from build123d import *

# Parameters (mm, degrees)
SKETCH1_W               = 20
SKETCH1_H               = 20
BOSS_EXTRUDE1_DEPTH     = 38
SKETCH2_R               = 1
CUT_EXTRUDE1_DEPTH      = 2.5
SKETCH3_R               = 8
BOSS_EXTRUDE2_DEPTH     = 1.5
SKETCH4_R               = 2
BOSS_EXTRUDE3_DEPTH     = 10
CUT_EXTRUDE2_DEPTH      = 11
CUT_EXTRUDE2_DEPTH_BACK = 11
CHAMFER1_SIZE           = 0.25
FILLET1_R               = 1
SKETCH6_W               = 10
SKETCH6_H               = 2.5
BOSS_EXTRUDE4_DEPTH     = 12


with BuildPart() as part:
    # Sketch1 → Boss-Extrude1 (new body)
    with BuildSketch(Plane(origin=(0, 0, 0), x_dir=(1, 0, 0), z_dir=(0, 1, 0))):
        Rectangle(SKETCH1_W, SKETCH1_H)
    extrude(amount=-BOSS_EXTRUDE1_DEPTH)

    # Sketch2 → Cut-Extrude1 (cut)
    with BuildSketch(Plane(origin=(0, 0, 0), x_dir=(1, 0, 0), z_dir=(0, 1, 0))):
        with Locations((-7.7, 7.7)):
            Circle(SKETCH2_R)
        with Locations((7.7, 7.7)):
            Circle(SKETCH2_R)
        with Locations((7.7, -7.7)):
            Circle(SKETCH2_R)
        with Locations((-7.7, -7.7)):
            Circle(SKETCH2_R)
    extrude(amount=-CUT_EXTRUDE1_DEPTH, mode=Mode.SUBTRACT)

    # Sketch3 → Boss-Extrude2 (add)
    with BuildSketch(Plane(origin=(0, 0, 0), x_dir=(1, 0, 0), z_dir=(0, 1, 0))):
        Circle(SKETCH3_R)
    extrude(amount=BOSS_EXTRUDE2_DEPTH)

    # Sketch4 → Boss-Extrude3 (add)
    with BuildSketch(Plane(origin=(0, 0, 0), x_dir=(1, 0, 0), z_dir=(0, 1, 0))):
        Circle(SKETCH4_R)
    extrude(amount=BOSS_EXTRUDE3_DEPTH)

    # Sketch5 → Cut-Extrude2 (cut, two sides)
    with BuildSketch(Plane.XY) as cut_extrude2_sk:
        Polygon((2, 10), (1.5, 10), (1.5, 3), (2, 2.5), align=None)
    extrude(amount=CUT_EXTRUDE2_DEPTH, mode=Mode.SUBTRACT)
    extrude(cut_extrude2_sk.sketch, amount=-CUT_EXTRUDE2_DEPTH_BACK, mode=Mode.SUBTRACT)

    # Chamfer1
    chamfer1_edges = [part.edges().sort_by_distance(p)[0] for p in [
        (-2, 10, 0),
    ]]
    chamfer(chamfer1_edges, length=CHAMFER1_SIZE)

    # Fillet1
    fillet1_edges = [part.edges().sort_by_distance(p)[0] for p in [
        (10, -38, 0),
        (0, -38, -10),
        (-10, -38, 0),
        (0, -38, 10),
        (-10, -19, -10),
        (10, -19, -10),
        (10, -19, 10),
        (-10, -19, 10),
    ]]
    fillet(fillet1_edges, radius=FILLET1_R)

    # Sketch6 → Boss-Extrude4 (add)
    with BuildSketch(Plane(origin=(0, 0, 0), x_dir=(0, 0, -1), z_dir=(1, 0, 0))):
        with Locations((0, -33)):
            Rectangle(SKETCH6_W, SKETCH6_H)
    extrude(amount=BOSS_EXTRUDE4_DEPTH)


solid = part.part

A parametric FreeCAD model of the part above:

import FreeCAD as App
import Part
import Sketcher
Q = App.Units.Quantity


def edges_at(feature, points):
    """Names of the edges that pass closest to the given points."""
    edges = feature.Shape.Edges
    near = lambda p: min(range(len(edges)), key=lambda i: edges[i].distToShape(Part.Vertex(*p))[0])
    return sorted({f"Edge{near(p) + 1}" for p in points})


def add_polygon(sketch, points):
    """Adds a closed chain of lines whose ends are joined by coincident constraints."""
    first, n = sketch.GeometryCount, len(points)
    for a, b in zip(points, points[1:] + points[:1]):
        sketch.addGeometry(Part.LineSegment(App.Vector(*a, 0), App.Vector(*b, 0)), False)
    for i in range(n):
        sketch.addConstraint(Sketcher.Constraint("Coincident", first + i, 2, first + (i + 1) % n, 1))

doc = App.newDocument("Part")
params = doc.addObject("Spreadsheet::Sheet", "Params")
for row, (alias, value) in enumerate([
    ("sketch1_width", "20 mm"),
    ("pad1_length", "38 mm"),
    ("sketch2_diameter", "2 mm"),
    ("pocket1_length", "2.5 mm"),
    ("sketch3_diameter", "16 mm"),
    ("pad2_length", "1.5 mm"),
    ("sketch4_diameter", "4 mm"),
    ("pad3_length", "10 mm"),
    ("sketch5_height", "7 mm"),
    ("sketch5_width", "0.5 mm"),
    ("chamfer_size", "0.25 mm"),
    ("fillet_radius", "1 mm"),
    ("sketch6_height", "10 mm"),
    ("sketch6_width", "2.5 mm"),
    ("pad4_length", "12 mm"),
], start=1):
    params.set(f"A{row}", alias)
    params.set(f"B{row}", "=" + value)
    params.setAlias(f"B{row}", alias)

body = doc.addObject("PartDesign::Body", "Body")

sketch1 = doc.addObject("Sketcher::SketchObject", "Sketch")
body.addObject(sketch1)
sketch1.AttachmentSupport = (doc.XZ_Plane, [""])
sketch1.MapMode = "FlatFace"
add_polygon(sketch1, [(-10, -10), (-10, 10), (10, 10), (10, -10)])
sketch1.addConstraint(Sketcher.Constraint("Vertical", 0))
sketch1.addConstraint(Sketcher.Constraint("Horizontal", 1))
sketch1.addConstraint(Sketcher.Constraint("Vertical", 2))
sketch1.addConstraint(Sketcher.Constraint("Horizontal", 3))
sketch1.addConstraint(Sketcher.Constraint("Symmetric", 0, 2, 2, 2, -1, 1))
sketch1.addConstraint(Sketcher.Constraint("Equal", 3, 0))
sketch1.addConstraint(Sketcher.Constraint("DistanceX", 1, 1, 1, 2, 20.0))
sketch1.setExpression("Constraints[10]", "Params.sketch1_width")
pad1 = doc.addObject("PartDesign::Pad", "Pad")
body.addObject(pad1)
pad1.Profile = sketch1
pad1.setExpression("Length", "Params.pad1_length")

sketch2 = doc.addObject("Sketcher::SketchObject", "Sketch001")
body.addObject(sketch2)
sketch2.AttachmentSupport = (doc.XZ_Plane, [""])
sketch2.MapMode = "FlatFace"
sketch2.addGeometry(Part.Circle(App.Vector(-7.7, -7.7, 0), App.Vector(0, 0, 1), 1), False)
sketch2.addGeometry(Part.Circle(App.Vector(7.7, -7.7, 0), App.Vector(0, 0, 1), 1), False)
sketch2.addGeometry(Part.Circle(App.Vector(7.7, 7.7, 0), App.Vector(0, 0, 1), 1), False)
sketch2.addGeometry(Part.Circle(App.Vector(-7.7, 7.7, 0), App.Vector(0, 0, 1), 1), False)
sketch2.addConstraint(Sketcher.Constraint("Equal", 0, 1))
sketch2.addConstraint(Sketcher.Constraint("Equal", 1, 2))
sketch2.addConstraint(Sketcher.Constraint("Equal", 2, 3))
sketch2.addConstraint(Sketcher.Constraint("Symmetric", 0, 3, 2, 3, -1, 1))
sketch2.addConstraint(Sketcher.Constraint("Symmetric", 1, 3, 3, 3, -1, 1))
sketch2.addConstraint(Sketcher.Constraint("Symmetric", 0, 3, 1, 3, -2))
sketch2.addConstraint(Sketcher.Constraint("Diameter", 0, 2.0))
sketch2.addConstraint(Sketcher.Constraint("DistanceX", 0, 3, -1, 1, 7.7))
sketch2.addConstraint(Sketcher.Constraint("DistanceY", 0, 3, -1, 1, 7.7))
sketch2.setExpression("Constraints[6]", "Params.sketch2_diameter")
pocket1 = doc.addObject("PartDesign::Pocket", "Pocket")
body.addObject(pocket1)
pocket1.Profile = sketch2
pocket1.setExpression("Length", "Params.pocket1_length")
pocket1.Reversed = True

sketch3 = doc.addObject("Sketcher::SketchObject", "Sketch002")
body.addObject(sketch3)
sketch3.AttachmentSupport = (doc.XZ_Plane, [""])
sketch3.MapMode = "FlatFace"
sketch3.addGeometry(Part.Circle(App.Vector(0, 0, 0), App.Vector(0, 0, 1), 8), False)
sketch3.addConstraint(Sketcher.Constraint("Coincident", 0, 3, -1, 1))
sketch3.addConstraint(Sketcher.Constraint("Diameter", 0, 16.0))
sketch3.setExpression("Constraints[1]", "Params.sketch3_diameter")
pad2 = doc.addObject("PartDesign::Pad", "Pad001")
body.addObject(pad2)
pad2.Profile = sketch3
pad2.setExpression("Length", "Params.pad2_length")
pad2.Reversed = True

sketch4 = doc.addObject("Sketcher::SketchObject", "Sketch003")
body.addObject(sketch4)
sketch4.AttachmentSupport = (doc.XZ_Plane, [""])
sketch4.MapMode = "FlatFace"
sketch4.addGeometry(Part.Circle(App.Vector(0, 0, 0), App.Vector(0, 0, 1), 2), False)
sketch4.addConstraint(Sketcher.Constraint("Coincident", 0, 3, -1, 1))
sketch4.addConstraint(Sketcher.Constraint("Diameter", 0, 4.0))
sketch4.setExpression("Constraints[1]", "Params.sketch4_diameter")
pad3 = doc.addObject("PartDesign::Pad", "Pad002")
body.addObject(pad3)
pad3.Profile = sketch4
pad3.setExpression("Length", "Params.pad3_length")
pad3.Reversed = True

sketch5 = doc.addObject("Sketcher::SketchObject", "Sketch004")
body.addObject(sketch5)
sketch5.AttachmentSupport = (doc.XY_Plane, [""])
sketch5.MapMode = "FlatFace"
add_polygon(sketch5, [(2, 10), (1.5, 10), (1.5, 3), (2, 2.5)])
sketch5.addConstraint(Sketcher.Constraint("Horizontal", 0))
sketch5.addConstraint(Sketcher.Constraint("Vertical", 1))
sketch5.addConstraint(Sketcher.Constraint("Vertical", 3))
sketch5.addConstraint(Sketcher.Constraint("DistanceY", 1, 2, 1, 1, 7.0))
sketch5.addConstraint(Sketcher.Constraint("Angle", 2, Q("-45 deg")))
sketch5.addConstraint(Sketcher.Constraint("DistanceX", 0, 2, 0, 1, 0.5))
sketch5.addConstraint(Sketcher.Constraint("DistanceY", -1, 1, 0, 2, 10.0))
sketch5.addConstraint(Sketcher.Constraint("DistanceX", -1, 1, 2, 2, 2.0))
sketch5.setExpression("Constraints[7]", "Params.sketch5_height")
sketch5.setExpression("Constraints[9]", "Params.sketch5_width")
pocket2 = doc.addObject("PartDesign::Pocket", "Pocket001")
body.addObject(pocket2)
pocket2.Profile = sketch5
pocket2.Type = "ThroughAll"
pocket2.Midplane = True
doc.recompute()

chamfer = doc.addObject("PartDesign::Chamfer", "Chamfer")
body.addObject(chamfer)
chamfer.Base = (pocket2, edges_at(pocket2, [(-2, 10, 0)]))
chamfer.setExpression("Size", "Params.chamfer_size")
doc.recompute()

fillet = doc.addObject("PartDesign::Fillet", "Fillet")
body.addObject(fillet)
fillet.Base = (chamfer, edges_at(chamfer, [
    (10, -38, 0),
    (0, -38, -10),
    (-10, -38, 0),
    (0, -38, 10),
    (-10, -19, -10),
    (10, -19, -10),
    (10, -19, 10),
    (-10, -19, 10),
]))
fillet.setExpression("Radius", "Params.fillet_radius")

sketch6 = doc.addObject("Sketcher::SketchObject", "Sketch005")
body.addObject(sketch6)
sketch6.AttachmentSupport = (doc.YZ_Plane, [""])
sketch6.MapMode = "FlatFace"
add_polygon(sketch6, [(-31.75, 5), (-34.25, 5), (-34.25, -5), (-31.75, -5)])
sketch6.addConstraint(Sketcher.Constraint("Horizontal", 0))
sketch6.addConstraint(Sketcher.Constraint("Vertical", 1))
sketch6.addConstraint(Sketcher.Constraint("Horizontal", 2))
sketch6.addConstraint(Sketcher.Constraint("Vertical", 3))
sketch6.addConstraint(Sketcher.Constraint("DistanceY", 1, 2, 1, 1, 10.0))
sketch6.addConstraint(Sketcher.Constraint("DistanceX", 0, 2, 0, 1, 2.5))
sketch6.addConstraint(Sketcher.Constraint("DistanceY", -1, 1, 0, 2, 5.0))
sketch6.addConstraint(Sketcher.Constraint("DistanceX", 0, 2, -1, 1, 34.25))
sketch6.setExpression("Constraints[8]", "Params.sketch6_height")
sketch6.setExpression("Constraints[9]", "Params.sketch6_width")
pad4 = doc.addObject("PartDesign::Pad", "Pad003")
body.addObject(pad4)
pad4.Profile = sketch6
pad4.setExpression("Length", "Params.pad4_length")

doc.recompute()
